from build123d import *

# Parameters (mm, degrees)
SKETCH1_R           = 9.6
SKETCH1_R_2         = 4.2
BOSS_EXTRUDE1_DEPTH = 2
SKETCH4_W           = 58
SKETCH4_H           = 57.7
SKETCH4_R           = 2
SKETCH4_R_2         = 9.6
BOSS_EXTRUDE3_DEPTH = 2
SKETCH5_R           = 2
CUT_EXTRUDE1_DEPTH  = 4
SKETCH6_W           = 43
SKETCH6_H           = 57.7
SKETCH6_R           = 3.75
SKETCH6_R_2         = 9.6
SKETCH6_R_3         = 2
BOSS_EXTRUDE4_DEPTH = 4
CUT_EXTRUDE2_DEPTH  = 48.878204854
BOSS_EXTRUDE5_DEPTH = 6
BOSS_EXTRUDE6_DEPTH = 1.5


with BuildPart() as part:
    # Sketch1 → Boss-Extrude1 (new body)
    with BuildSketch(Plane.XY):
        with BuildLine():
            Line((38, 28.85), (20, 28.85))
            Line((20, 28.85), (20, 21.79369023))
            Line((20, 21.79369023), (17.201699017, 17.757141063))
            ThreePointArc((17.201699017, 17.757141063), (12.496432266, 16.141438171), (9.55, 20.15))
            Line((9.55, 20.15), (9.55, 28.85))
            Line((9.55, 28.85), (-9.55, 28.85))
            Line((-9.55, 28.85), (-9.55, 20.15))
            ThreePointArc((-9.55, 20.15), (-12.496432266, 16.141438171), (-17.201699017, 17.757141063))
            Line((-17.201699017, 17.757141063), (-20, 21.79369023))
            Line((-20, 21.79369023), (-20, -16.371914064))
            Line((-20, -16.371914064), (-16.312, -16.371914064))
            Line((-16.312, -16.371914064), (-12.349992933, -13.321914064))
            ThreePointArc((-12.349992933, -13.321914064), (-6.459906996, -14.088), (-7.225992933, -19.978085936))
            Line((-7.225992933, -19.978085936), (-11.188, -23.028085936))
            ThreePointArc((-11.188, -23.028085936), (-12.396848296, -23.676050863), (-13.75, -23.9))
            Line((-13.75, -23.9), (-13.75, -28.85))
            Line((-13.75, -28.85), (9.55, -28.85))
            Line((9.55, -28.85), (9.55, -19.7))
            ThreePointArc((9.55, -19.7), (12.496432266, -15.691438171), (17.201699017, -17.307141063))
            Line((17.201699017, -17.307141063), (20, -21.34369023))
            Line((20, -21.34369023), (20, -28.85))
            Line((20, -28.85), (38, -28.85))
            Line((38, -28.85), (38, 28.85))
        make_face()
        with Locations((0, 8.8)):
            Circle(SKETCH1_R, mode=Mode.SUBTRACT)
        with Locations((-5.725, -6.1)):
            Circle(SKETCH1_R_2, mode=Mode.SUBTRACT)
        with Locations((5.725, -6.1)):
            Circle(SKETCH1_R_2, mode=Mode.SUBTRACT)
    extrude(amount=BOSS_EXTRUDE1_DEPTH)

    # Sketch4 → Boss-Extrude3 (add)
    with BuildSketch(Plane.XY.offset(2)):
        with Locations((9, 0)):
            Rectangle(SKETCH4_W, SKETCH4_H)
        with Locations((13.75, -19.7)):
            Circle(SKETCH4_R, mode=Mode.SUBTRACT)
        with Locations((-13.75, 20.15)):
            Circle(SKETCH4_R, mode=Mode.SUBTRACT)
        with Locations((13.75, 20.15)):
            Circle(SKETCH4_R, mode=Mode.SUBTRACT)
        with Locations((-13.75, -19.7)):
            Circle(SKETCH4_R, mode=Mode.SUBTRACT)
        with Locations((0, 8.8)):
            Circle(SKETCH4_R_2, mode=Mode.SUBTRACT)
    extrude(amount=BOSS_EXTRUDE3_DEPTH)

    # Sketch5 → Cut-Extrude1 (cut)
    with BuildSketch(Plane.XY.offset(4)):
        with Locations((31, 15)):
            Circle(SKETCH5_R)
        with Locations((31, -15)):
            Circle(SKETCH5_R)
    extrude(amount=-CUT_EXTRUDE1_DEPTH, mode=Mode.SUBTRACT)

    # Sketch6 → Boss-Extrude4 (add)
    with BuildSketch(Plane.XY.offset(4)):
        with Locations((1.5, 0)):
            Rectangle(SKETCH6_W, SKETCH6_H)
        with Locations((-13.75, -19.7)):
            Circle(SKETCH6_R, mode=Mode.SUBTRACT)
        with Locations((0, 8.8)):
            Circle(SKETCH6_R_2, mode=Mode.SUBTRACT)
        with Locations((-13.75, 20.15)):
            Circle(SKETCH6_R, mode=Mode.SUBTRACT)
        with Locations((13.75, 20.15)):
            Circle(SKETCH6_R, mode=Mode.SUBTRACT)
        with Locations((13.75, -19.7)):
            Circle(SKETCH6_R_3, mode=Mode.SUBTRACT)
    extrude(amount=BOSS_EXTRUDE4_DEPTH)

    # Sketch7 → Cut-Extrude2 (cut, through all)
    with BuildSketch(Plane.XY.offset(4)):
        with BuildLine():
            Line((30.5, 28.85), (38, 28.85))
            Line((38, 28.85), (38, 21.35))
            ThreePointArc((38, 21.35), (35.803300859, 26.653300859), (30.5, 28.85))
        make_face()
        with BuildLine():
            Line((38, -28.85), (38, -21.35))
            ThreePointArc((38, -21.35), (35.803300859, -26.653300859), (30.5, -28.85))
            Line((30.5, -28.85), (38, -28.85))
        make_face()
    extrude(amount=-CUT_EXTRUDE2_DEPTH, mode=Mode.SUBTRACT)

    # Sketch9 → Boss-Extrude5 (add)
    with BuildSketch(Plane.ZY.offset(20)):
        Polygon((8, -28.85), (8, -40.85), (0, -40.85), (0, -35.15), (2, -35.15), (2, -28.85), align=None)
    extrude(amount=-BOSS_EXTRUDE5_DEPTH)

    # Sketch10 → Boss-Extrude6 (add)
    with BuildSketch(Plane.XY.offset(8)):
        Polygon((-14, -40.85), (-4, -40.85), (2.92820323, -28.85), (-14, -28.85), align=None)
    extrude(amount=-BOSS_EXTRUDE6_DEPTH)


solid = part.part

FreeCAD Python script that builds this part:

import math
import FreeCAD as App
import Part
import Sketcher

V = App.Vector
Q = App.Units.Quantity


def add_polygon(sketch, points):
    """Adds a closed chain of lines whose ends are joined by coincident constraints."""
    first, n = sketch.GeometryCount, len(points)
    for a, b in zip(points, points[1:] + points[:1]):
        sketch.addGeometry(Part.LineSegment(App.Vector(*a, 0), App.Vector(*b, 0)), False)
    for i in range(n):
        sketch.addConstraint(Sketcher.Constraint("Coincident", first + i, 2, first + (i + 1) % n, 1))

doc = App.newDocument("Part")
body = doc.addObject("PartDesign::Body", "Body")

# Sketch on XY plane
sketch1 = doc.addObject("Sketcher::SketchObject", "Sketch")
body.addObject(sketch1)
sketch1.AttachmentSupport = (doc.XY_Plane, [""])
sketch1.MapMode = "FlatFace"
sketch1.addGeometry(Part.LineSegment(V(38, 28.9, 0), V(20, 28.9, 0)), False)
sketch1.addGeometry(Part.LineSegment(V(20, 28.9, 0), V(20, 21.8, 0)), False)
sketch1.addGeometry(Part.LineSegment(V(20, 21.8, 0), V(17.2, 17.8, 0)), False)
sketch1.addGeometry(Part.ArcOfCircle(Part.Circle(V(13.8, 20.1, 0), V(0, 0, 1), 4.2), math.radians(180), math.radians(325)), False)
sketch1.addGeometry(Part.LineSegment(V(9.6, 20.1, 0), V(9.6, 28.9, 0)), False)
sketch1.addGeometry(Part.LineSegment(V(9.6, 28.9, 0), V(-9.6, 28.9, 0)), False)
sketch1.addGeometry(Part.LineSegment(V(-9.6, 28.9, 0), V(-9.6, 20.1, 0)), False)
sketch1.addGeometry(Part.ArcOfCircle(Part.Circle(V(-13.8, 20.1, 0), V(0, 0, 1), 4.2), math.radians(-145), math.radians(0)), False)
sketch1.addGeometry(Part.LineSegment(V(-17.2, 17.8, 0), V(-20, 21.8, 0)), False)
sketch1.addGeometry(Part.LineSegment(V(-20, 21.8, 0), V(-20, -16.4, 0)), False)
sketch1.addGeometry(Part.LineSegment(V(-20, -16.4, 0), V(-16.3, -16.4, 0)), False)
sketch1.addGeometry(Part.LineSegment(V(-16.3, -16.4, 0), V(-12.3, -13.3, 0)), False)
sketch1.addGeometry(Part.ArcOfCircle(Part.Circle(V(-9.8, -16.6, 0), V(0, 0, 1), 4.2), math.radians(-52), math.radians(128)), False)
sketch1.addGeometry(Part.LineSegment(V(-7.2, -20, 0), V(-11.2, -23, 0)), False)
sketch1.addGeometry(Part.ArcOfCircle(Part.Circle(V(-13.8, -19.7, 0), V(0, 0, 1), 4.2), math.radians(-90), math.radians(-52)), False)
sketch1.addGeometry(Part.LineSegment(V(-13.8, -23.9, 0), V(-13.8, -28.9, 0)), False)
sketch1.addGeometry(Part.LineSegment(V(-13.8, -28.9, 0), V(9.6, -28.9, 0)), False)
sketch1.addGeometry(Part.LineSegment(V(9.6, -28.9, 0), V(9.6, -19.7, 0)), False)
sketch1.addGeometry(Part.ArcOfCircle(Part.Circle(V(13.8, -19.7, 0), V(0, 0, 1), 4.2), math.radians(35), math.radians(180)), False)
sketch1.addGeometry(Part.LineSegment(V(17.2, -17.3, 0), V(20, -21.3, 0)), False)
sketch1.addGeometry(Part.LineSegment(V(20, -21.3, 0), V(20, -28.9, 0)), False)
sketch1.addGeometry(Part.LineSegment(V(20, -28.9, 0), V(38, -28.9, 0)), False)
sketch1.addGeometry(Part.LineSegment(V(38, -28.9, 0), V(38, 28.9, 0)), False)
sketch1.addGeometry(Part.Circle(V(-5.7, -6.1, 0), V(0, 0, 1), 4.2), False)
sketch1.addGeometry(Part.Circle(V(5.7, -6.1, 0), V(0, 0, 1), 4.2), False)
sketch1.addGeometry(Part.Circle(V(0, 8.8, 0), V(0, 0, 1), 9.6), False)
sketch1.addConstraint(Sketcher.Constraint("Coincident", 0, 2, 1, 1))
sketch1.addConstraint(Sketcher.Constraint("Coincident", 1, 2, 2, 1))
sketch1.addConstraint(Sketcher.Constraint("Tangent", 2, 2, 3, 2))
sketch1.addConstraint(Sketcher.Constraint("Tangent", 3, 1, 4, 1))
sketch1.addConstraint(Sketcher.Constraint("Coincident", 4, 2, 5, 1))
sketch1.addConstraint(Sketcher.Constraint("Coincident", 5, 2, 6, 1))
sketch1.addConstraint(Sketcher.Constraint("Tangent", 6, 2, 7, 2))
sketch1.addConstraint(Sketcher.Constraint("Tangent", 7, 1, 8, 1))
sketch1.addConstraint(Sketcher.Constraint("Coincident", 8, 2, 9, 1))
sketch1.addConstraint(Sketcher.Constraint("Coincident", 9, 2, 10, 1))
sketch1.addConstraint(Sketcher.Constraint("Coincident", 10, 2, 11, 1))
sketch1.addConstraint(Sketcher.Constraint("Tangent", 11, 2, 12, 2))
sketch1.addConstraint(Sketcher.Constraint("Tangent", 12, 1, 13, 1))
sketch1.addConstraint(Sketcher.Constraint("Tangent", 13, 2, 14, 2))
sketch1.addConstraint(Sketcher.Constraint("Coincident", 14, 1, 15, 1))
sketch1.addConstraint(Sketcher.Constraint("Coincident", 15, 2, 16, 1))
sketch1.addConstraint(Sketcher.Constraint("Coincident", 16, 2, 17, 1))
sketch1.addConstraint(Sketcher.Constraint("Tangent", 17, 2, 18, 2))
sketch1.addConstraint(Sketcher.Constraint("Tangent", 18, 1, 19, 1))
sketch1.addConstraint(Sketcher.Constraint("Coincident", 19, 2, 20, 1))
sketch1.addConstraint(Sketcher.Constraint("Coincident", 20, 2, 21, 1))
sketch1.addConstraint(Sketcher.Constraint("Coincident", 21, 2, 22, 1))
sketch1.addConstraint(Sketcher.Constraint("Coincident", 22, 2, 0, 1))
sketch1.addConstraint(Sketcher.Constraint("Horizontal", 0))
sketch1.addConstraint(Sketcher.Constraint("Vertical", 1))
sketch1.addConstraint(Sketcher.Constraint("Vertical", 4))
sketch1.addConstraint(Sketcher.Constraint("Horizontal", 5))
sketch1.addConstraint(Sketcher.Constraint("Vertical", 6))
sketch1.addConstraint(Sketcher.Constraint("Vertical", 9))
sketch1.addConstraint(Sketcher.Constraint("Horizontal", 10))
sketch1.addConstraint(Sketcher.Constraint("Vertical", 15))
sketch1.addConstraint(Sketcher.Constraint("Horizontal", 16))
sketch1.addConstraint(Sketcher.Constraint("Vertical", 17))
sketch1.addConstraint(Sketcher.Constraint("Vertical", 20))
sketch1.addConstraint(Sketcher.Constraint("Horizontal", 21))
sketch1.addConstraint(Sketcher.Constraint("Vertical", 22))
sketch1.addConstraint(Sketcher.Constraint("Equal", 3, 7))
sketch1.addConstraint(Sketcher.Constraint("Equal", 7, 12))
sketch1.addConstraint(Sketcher.Constraint("Equal", 12, 14))
sketch1.addConstraint(Sketcher.Constraint("Equal", 14, 18))
sketch1.addConstraint(Sketcher.Constraint("Equal", 18, 23))
sketch1.addConstraint(Sketcher.Constraint("Equal", 23, 24))
sketch1.addConstraint(Sketcher.Constraint("Symmetric", 5, 2, 16, 2, -1, 1))
sketch1.addConstraint(Sketcher.Constraint("Symmetric", 3, 3, 7, 3, -2))
sketch1.addConstraint(Sketcher.Constraint("Symmetric", 14, 3, 18, 3, -2))
sketch1.addConstraint(Sketcher.Constraint("Symmetric", 23, 3, 24, 3, -2))
sketch1.addConstraint(Sketcher.Constraint("Symmetric", 1, 2, 8, 2, -2))
sketch1.addConstraint(Sketcher.Constraint("Symmetric", 0, 2, 20, 2, -1))
sketch1.addConstraint(Sketcher.Constraint("PointOnObject", 25, 3, -2))
sketch1.addConstraint(Sketcher.Constraint("Parallel", 11, 13))
sketch1.addConstraint(Sketcher.Constraint("Parallel", 8, 19))
sketch1.addConstraint(Sketcher.Constraint("Horizontal", 0, 2, 4, 2))
sketch1.addConstraint(Sketcher.Constraint("Vertical", 7, 3, 14, 1))
sketch1.addConstraint(Sketcher.Constraint("Equal", 11, 13))
sketch1.addConstraint(Sketcher.Constraint("Diameter", 23, Q("8.4 mm")))
sketch1.addConstraint(Sketcher.Constraint("Diameter", 25, Q("19.2 mm")))
sketch1.addConstraint(Sketcher.Constraint("DistanceX", 0, 2, 0, 1, Q("18 mm")))
sketch1.addConstraint(Sketcher.Constraint("Distance", 11, Q("5 mm")))
sketch1.addConstraint(Sketcher.Constraint("DistanceX", 5, 2, 5, 1, Q("19.1 mm")))
sketch1.addConstraint(Sketcher.Constraint("DistanceY", 4, 1, 4, 2, Q("8.7 mm")))
sketch1.addConstraint(Sketcher.Constraint("DistanceY", 22, 1, 22, 2, Q("57.7 mm")))
sketch1.addConstraint(Sketcher.Constraint("DistanceX", -1, 1, 0, 2, Q("20 mm")))
sketch1.addConstraint(Sketcher.Constraint("DistanceY", 15, 2, 15, 1, Q("4.95 mm")))
sketch1.addConstraint(Sketcher.Constraint("DistanceY", 23, 3, -1, 1, Q("6.1 mm")))
sketch1.addConstraint(Sketcher.Constraint("DistanceY", -1, 1, 25, 3, Q("8.8 mm")))
sketch1.addConstraint(Sketcher.Constraint("DistanceY", 12, 3, 7, 3, Q("36.8 mm")))
sketch1.addConstraint(Sketcher.Constraint("DistanceX", 23, 3, 24, 3, Q("11.45 mm")))
sketch1.addConstraint(Sketcher.Constraint("DistanceY", 1, 2, 1, 1, Q("7.05631 mm")))
pad1 = doc.addObject("PartDesign::Pad", "Pad")
body.addObject(pad1)
pad1.Profile = sketch1
pad1.Length = 2

# Sketch on XY plane
sketch2 = doc.addObject("Sketcher::SketchObject", "Sketch001")
body.addObject(sketch2)
sketch2.AttachmentSupport = (doc.XY_Plane, [""])
sketch2.MapMode = "FlatFace"
sketch2.AttachmentOffset = App.Placement(V(0, 0, 2), App.Rotation())
add_polygon(sketch2, [(-20, 28.9), (-20, -28.9), (38, -28.9), (38, 28.9)])  # lines 0-3
sketch2.addGeometry(Part.Circle(V(-13.8, -19.7, 0), V(0, 0, 1), 2), False)  # 4
sketch2.addGeometry(Part.Circle(V(13.8, -19.7, 0), V(0, 0, 1), 2), False)  # 5
sketch2.addGeometry(Part.Circle(V(-13.8, 20.1, 0), V(0, 0, 1), 2), False)  # 6
sketch2.addGeometry(Part.Circle(V(0, 8.8, 0), V(0, 0, 1), 9.6), False)  # 7
sketch2.addGeometry(Part.Circle(V(13.8, 20.1, 0), V(0, 0, 1), 2), False)  # 8
sketch2.addConstraint(Sketcher.Constraint("Vertical", 0))
sketch2.addConstraint(Sketcher.Constraint("Horizontal", 1))
sketch2.addConstraint(Sketcher.Constraint("Vertical", 2))
sketch2.addConstraint(Sketcher.Constraint("Horizontal", 3))
sketch2.addConstraint(Sketcher.Constraint("Equal", 4, 5))
sketch2.addConstraint(Sketcher.Constraint("Equal", 5, 6))
sketch2.addConstraint(Sketcher.Constraint("Equal", 6, 8))
sketch2.addConstraint(Sketcher.Constraint("Symmetric", 4, 3, 5, 3, -2))
sketch2.addConstraint(Sketcher.Constraint("Symmetric", 6, 3, 8, 3, -2))
sketch2.addConstraint(Sketcher.Constraint("PointOnObject", 7, 3, -2))
sketch2.addConstraint(Sketcher.Constraint("Vertical", 4, 3, 6, 3))
sketch2.addConstraint(Sketcher.Constraint("Diameter", 4, Q("4 mm")))
sketch2.addConstraint(Sketcher.Constraint("Diameter", 7, Q("19.2 mm")))
sketch2.addConstraint(Sketcher.Constraint("DistanceX", 1, 1, 1, 2, Q("58 mm")))
sketch2.addConstraint(Sketcher.Constraint("DistanceY", 0, 2, 0, 1, Q("57.7 mm")))
sketch2.addConstraint(Sketcher.Constraint("DistanceX", 0, 2, -1, 1, Q("20 mm")))
sketch2.addConstraint(Sketcher.Constraint("DistanceY", 0, 2, 6, 3, Q("49 mm")))
sketch2.addConstraint(Sketcher.Constraint("DistanceY", 4, 3, -1, 1, Q("19.7 mm")))
sketch2.addConstraint(Sketcher.Constraint("DistanceY", -1, 1, 7, 3, Q("8.8 mm")))
sketch2.addConstraint(Sketcher.Constraint("DistanceX", 4, 3, 5, 3, Q("27.5 mm")))
sketch2.addConstraint(Sketcher.Constraint("DistanceY", -1, 1, 6, 3, Q("20.15 mm")))
pad2 = doc.addObject("PartDesign::Pad", "Pad001")
body.addObject(pad2)
pad2.Profile = sketch2
pad2.Length = 2

# Sketch on XY plane
sketch3 = doc.addObject("Sketcher::SketchObject", "Sketch002")
body.addObject(sketch3)
sketch3.AttachmentSupport = (doc.XY_Plane, [""])
sketch3.MapMode = "FlatFace"
sketch3.AttachmentOffset = App.Placement(V(0, 0, 4), App.Rotation())
sketch3.addGeometry(Part.Circle(V(31, 15, 0), V(0, 0, 1), 2), False)
sketch3.addGeometry(Part.Circle(V(31, -15, 0), V(0, 0, 1), 2), False)
sketch3.addConstraint(Sketcher.Constraint("Equal", 0, 1))
sketch3.addConstraint(Sketcher.Constraint("Symmetric", 0, 3, 1, 3, -1))
sketch3.addConstraint(Sketcher.Constraint("Diameter", 0, Q("4 mm")))
sketch3.addConstraint(Sketcher.Constraint("DistanceX", -1, 1, 0, 3, Q("31 mm")))
sketch3.addConstraint(Sketcher.Constraint("DistanceY", -1, 1, 0, 3, Q("15 mm")))
pocket1 = doc.addObject("PartDesign::Pocket", "Pocket")
body.addObject(pocket1)
pocket1.Profile = sketch3
pocket1.Length = 4

# Sketch on XY plane
sketch4 = doc.addObject("Sketcher::SketchObject", "Sketch003")
body.addObject(sketch4)
sketch4.AttachmentSupport = (doc.XY_Plane, [""])
sketch4.MapMode = "FlatFace"
sketch4.AttachmentOffset = App.Placement(V(0, 0, 4), App.Rotation())
add_polygon(sketch4, [(-20, 28.9), (-20, -28.9), (23, -28.9), (23, 28.9)])  # lines 0-3
sketch4.addGeometry(Part.Circle(V(-13.8, -19.7, 0), V(0, 0, 1), 3.8), False)  # 4
sketch4.addGeometry(Part.Circle(V(13.8, -19.7, 0), V(0, 0, 1), 2), False)  # 5
sketch4.addGeometry(Part.Circle(V(-13.8, 20.1, 0), V(0, 0, 1), 3.8), False)  # 6
sketch4.addGeometry(Part.Circle(V(0, 8.8, 0), V(0, 0, 1), 9.6), False)  # 7
sketch4.addGeometry(Part.Circle(V(13.8, 20.1, 0), V(0, 0, 1), 3.8), False)  # 8
sketch4.addConstraint(Sketcher.Constraint("Vertical", 0))
sketch4.addConstraint(Sketcher.Constraint("Horizontal", 1))
sketch4.addConstraint(Sketcher.Constraint("Vertical", 2))
sketch4.addConstraint(Sketcher.Constraint("Horizontal", 3))
sketch4.addConstraint(Sketcher.Constraint("Equal", 4, 6))
sketch4.addConstraint(Sketcher.Constraint("Equal", 6, 8))
sketch4.addConstraint(Sketcher.Constraint("Symmetric", 4, 3, 5, 3, -2))
sketch4.addConstraint(Sketcher.Constraint("Symmetric", 6, 3, 8, 3, -2))
sketch4.addConstraint(Sketcher.Constraint("PointOnObject", 7, 3, -2))
sketch4.addConstraint(Sketcher.Constraint("Vertical", 4, 3, 6, 3))
sketch4.addConstraint(Sketcher.Constraint("Diameter", 5, Q("4 mm")))
sketch4.addConstraint(Sketcher.Constraint("Diameter", 4, Q("7.5 mm")))
sketch4.addConstraint(Sketcher.Constraint("Diameter", 7, Q("19.2 mm")))
sketch4.addConstraint(Sketcher.Constraint("DistanceX", 1, 1, 1, 2, Q("43 mm")))
sketch4.addConstraint(Sketcher.Constraint("DistanceY", 0, 2, 0, 1, Q("57.7 mm")))
sketch4.addConstraint(Sketcher.Constraint("DistanceX", 0, 2, -1, 1, Q("20 mm")))
sketch4.addConstraint(Sketcher.Constraint("DistanceY", 0, 2, 6, 3, Q("49 mm")))
sketch4.addConstraint(Sketcher.Constraint("DistanceY", 4, 3, -1, 1, Q("19.7 mm")))
sketch4.addConstraint(Sketcher.Constraint("DistanceY", -1, 1, 7, 3, Q("8.8 mm")))
sketch4.addConstraint(Sketcher.Constraint("DistanceX", 4, 3, 5, 3, Q("27.5 mm")))
sketch4.addConstraint(Sketcher.Constraint("DistanceY", -1, 1, 6, 3, Q("20.15 mm")))
pad3 = doc.addObject("PartDesign::Pad", "Pad002")
body.addObject(pad3)
pad3.Profile = sketch4
pad3.Length = 4

# Sketch on XY plane
sketch5 = doc.addObject("Sketcher::SketchObject", "Sketch004")
body.addObject(sketch5)
sketch5.AttachmentSupport = (doc.XY_Plane, [""])
sketch5.MapMode = "FlatFace"
sketch5.AttachmentOffset = App.Placement(V(0, 0, 4), App.Rotation())
sketch5.addGeometry(Part.LineSegment(V(38, 29, 0), V(30, 29, 0)), False)
sketch5.addGeometry(Part.ArcOfCircle(Part.Circle(V(30, 21, 0), V(0, 0, 1), 8), math.radians(0), math.radians(90)), False)
sketch5.addGeometry(Part.LineSegment(V(38, 21, 0), V(38, 29, 0)), False)
sketch5.addGeometry(Part.LineSegment(V(38, -29, 0), V(38, -21, 0)), False)
sketch5.addGeometry(Part.ArcOfCircle(Part.Circle(V(30, -21, 0), V(0, 0, 1), 8), math.radians(-90), math.radians(0)), False)
sketch5.addGeometry(Part.LineSegment(V(30, -29, 0), V(38, -29, 0)), False)
sketch5.addConstraint(Sketcher.Constraint("Tangent", 0, 2, 1, 2))
sketch5.addConstraint(Sketcher.Constraint("Tangent", 1, 1, 2, 1))
sketch5.addConstraint(Sketcher.Constraint("Coincident", 2, 2, 0, 1))
sketch5.addConstraint(Sketcher.Constraint("Tangent", 3, 2, 4, 2))
sketch5.addConstraint(Sketcher.Constraint("Tangent", 4, 1, 5, 1))
sketch5.addConstraint(Sketcher.Constraint("Coincident", 5, 2, 3, 1))
sketch5.addConstraint(Sketcher.Constraint("Horizontal", 0))
sketch5.addConstraint(Sketcher.Constraint("Vertical", 2))
sketch5.addConstraint(Sketcher.Constraint("Vertical", 3))
sketch5.addConstraint(Sketcher.Constraint("Horizontal", 5))
sketch5.addConstraint(Sketcher.Constraint("Equal", 1, 4))
sketch5.addConstraint(Sketcher.Constraint("Symmetric", 1, 3, 4, 3, -1))
sketch5.addConstraint(Sketcher.Constraint("Radius", 1, Q("7.5 mm")))
sketch5.addConstraint(Sketcher.Constraint("DistanceX", -1, 1, 1, 1, Q("38 mm")))
sketch5.addConstraint(Sketcher.Constraint("DistanceY", 4, 3, 1, 3, Q("42.7 mm")))
pocket2 = doc.addObject("PartDesign::Pocket", "Pocket001")
body.addObject(pocket2)
pocket2.Profile = sketch5
pocket2.Type = "ThroughAll"

# Sketch on YZ plane
sketch6 = doc.addObject("Sketcher::SketchObject", "Sketch005")
body.addObject(sketch6)
sketch6.AttachmentSupport = (doc.YZ_Plane, [""])
sketch6.MapMode = "FlatFace"
sketch6.AttachmentOffset = App.Placement(V(0, 0, -20), App.Rotation())
add_polygon(sketch6, [(-40.9, 8), (-28.9, 8), (-28.9, 2), (-35.1, 2), (-35.1, 0), (-40.9, 0)])  # lines 0-5
sketch6.addConstraint(Sketcher.Constraint("Horizontal", 0))
sketch6.addConstraint(Sketcher.Constraint("Vertical", 1))
sketch6.addConstraint(Sketcher.Constraint("Horizontal", 2))
sketch6.addConstraint(Sketcher.Constraint("Vertical", 3))
sketch6.addConstraint(Sketcher.Constraint("Horizontal", 4))
sketch6.addConstraint(Sketcher.Constraint("Vertical", 5))
sketch6.addConstraint(Sketcher.Constraint("PointOnObject", 3, 2, -1))
sketch6.addConstraint(Sketcher.Constraint("DistanceX", 0, 1, 0, 2, Q("12 mm")))
sketch6.addConstraint(Sketcher.Constraint("DistanceY", 1, 2, 1, 1, Q("6 mm")))
sketch6.addConstraint(Sketcher.Constraint("DistanceY", 3, 2, 3, 1, Q("2 mm")))
sketch6.addConstraint(Sketcher.Constraint("DistanceX", 2, 2, 2, 1, Q("6.3 mm")))
sketch6.addConstraint(Sketcher.Constraint("DistanceX", 0, 2, -1, 1, Q("28.85 mm")))
pad4 = doc.addObject("PartDesign::Pad", "Pad003")
body.addObject(pad4)
pad4.Profile = sketch6
pad4.Length = 6

# Sketch on XY plane
sketch7 = doc.addObject("Sketcher::SketchObject", "Sketch006")
body.addObject(sketch7)
sketch7.AttachmentSupport = (doc.XY_Plane, [""])
sketch7.MapMode = "FlatFace"
sketch7.AttachmentOffset = App.Placement(V(0, 0, 8), App.Rotation())
add_polygon(sketch7, [(-14, -41), (-4, -41), (3, -29), (-14, -29)])  # lines 0-3
sketch7.addConstraint(Sketcher.Constraint("Horizontal", 0))
sketch7.addConstraint(Sketcher.Constraint("Horizontal", 2))
sketch7.addConstraint(Sketcher.Constraint("Vertical", 3))
sketch7.addConstraint(Sketcher.Constraint("DistanceX", 0, 1, 0, 2, Q("10 mm")))
sketch7.addConstraint(Sketcher.Constraint("DistanceY", 3, 2, 3, 1, Q("12 mm")))
sketch7.addConstraint(Sketcher.Constraint("Angle", 1, Q("60 deg")))
sketch7.addConstraint(Sketcher.Constraint("DistanceX", 0, 2, -1, 1, Q("4 mm")))
sketch7.addConstraint(Sketcher.Constraint("DistanceY", 0, 2, -1, 1, Q("40.85 mm")))
pad5 = doc.addObject("PartDesign::Pad", "Pad004")
body.addObject(pad5)
pad5.Profile = sketch7
pad5.Length = 1.5
pad5.Reversed = True

doc.recompute()
